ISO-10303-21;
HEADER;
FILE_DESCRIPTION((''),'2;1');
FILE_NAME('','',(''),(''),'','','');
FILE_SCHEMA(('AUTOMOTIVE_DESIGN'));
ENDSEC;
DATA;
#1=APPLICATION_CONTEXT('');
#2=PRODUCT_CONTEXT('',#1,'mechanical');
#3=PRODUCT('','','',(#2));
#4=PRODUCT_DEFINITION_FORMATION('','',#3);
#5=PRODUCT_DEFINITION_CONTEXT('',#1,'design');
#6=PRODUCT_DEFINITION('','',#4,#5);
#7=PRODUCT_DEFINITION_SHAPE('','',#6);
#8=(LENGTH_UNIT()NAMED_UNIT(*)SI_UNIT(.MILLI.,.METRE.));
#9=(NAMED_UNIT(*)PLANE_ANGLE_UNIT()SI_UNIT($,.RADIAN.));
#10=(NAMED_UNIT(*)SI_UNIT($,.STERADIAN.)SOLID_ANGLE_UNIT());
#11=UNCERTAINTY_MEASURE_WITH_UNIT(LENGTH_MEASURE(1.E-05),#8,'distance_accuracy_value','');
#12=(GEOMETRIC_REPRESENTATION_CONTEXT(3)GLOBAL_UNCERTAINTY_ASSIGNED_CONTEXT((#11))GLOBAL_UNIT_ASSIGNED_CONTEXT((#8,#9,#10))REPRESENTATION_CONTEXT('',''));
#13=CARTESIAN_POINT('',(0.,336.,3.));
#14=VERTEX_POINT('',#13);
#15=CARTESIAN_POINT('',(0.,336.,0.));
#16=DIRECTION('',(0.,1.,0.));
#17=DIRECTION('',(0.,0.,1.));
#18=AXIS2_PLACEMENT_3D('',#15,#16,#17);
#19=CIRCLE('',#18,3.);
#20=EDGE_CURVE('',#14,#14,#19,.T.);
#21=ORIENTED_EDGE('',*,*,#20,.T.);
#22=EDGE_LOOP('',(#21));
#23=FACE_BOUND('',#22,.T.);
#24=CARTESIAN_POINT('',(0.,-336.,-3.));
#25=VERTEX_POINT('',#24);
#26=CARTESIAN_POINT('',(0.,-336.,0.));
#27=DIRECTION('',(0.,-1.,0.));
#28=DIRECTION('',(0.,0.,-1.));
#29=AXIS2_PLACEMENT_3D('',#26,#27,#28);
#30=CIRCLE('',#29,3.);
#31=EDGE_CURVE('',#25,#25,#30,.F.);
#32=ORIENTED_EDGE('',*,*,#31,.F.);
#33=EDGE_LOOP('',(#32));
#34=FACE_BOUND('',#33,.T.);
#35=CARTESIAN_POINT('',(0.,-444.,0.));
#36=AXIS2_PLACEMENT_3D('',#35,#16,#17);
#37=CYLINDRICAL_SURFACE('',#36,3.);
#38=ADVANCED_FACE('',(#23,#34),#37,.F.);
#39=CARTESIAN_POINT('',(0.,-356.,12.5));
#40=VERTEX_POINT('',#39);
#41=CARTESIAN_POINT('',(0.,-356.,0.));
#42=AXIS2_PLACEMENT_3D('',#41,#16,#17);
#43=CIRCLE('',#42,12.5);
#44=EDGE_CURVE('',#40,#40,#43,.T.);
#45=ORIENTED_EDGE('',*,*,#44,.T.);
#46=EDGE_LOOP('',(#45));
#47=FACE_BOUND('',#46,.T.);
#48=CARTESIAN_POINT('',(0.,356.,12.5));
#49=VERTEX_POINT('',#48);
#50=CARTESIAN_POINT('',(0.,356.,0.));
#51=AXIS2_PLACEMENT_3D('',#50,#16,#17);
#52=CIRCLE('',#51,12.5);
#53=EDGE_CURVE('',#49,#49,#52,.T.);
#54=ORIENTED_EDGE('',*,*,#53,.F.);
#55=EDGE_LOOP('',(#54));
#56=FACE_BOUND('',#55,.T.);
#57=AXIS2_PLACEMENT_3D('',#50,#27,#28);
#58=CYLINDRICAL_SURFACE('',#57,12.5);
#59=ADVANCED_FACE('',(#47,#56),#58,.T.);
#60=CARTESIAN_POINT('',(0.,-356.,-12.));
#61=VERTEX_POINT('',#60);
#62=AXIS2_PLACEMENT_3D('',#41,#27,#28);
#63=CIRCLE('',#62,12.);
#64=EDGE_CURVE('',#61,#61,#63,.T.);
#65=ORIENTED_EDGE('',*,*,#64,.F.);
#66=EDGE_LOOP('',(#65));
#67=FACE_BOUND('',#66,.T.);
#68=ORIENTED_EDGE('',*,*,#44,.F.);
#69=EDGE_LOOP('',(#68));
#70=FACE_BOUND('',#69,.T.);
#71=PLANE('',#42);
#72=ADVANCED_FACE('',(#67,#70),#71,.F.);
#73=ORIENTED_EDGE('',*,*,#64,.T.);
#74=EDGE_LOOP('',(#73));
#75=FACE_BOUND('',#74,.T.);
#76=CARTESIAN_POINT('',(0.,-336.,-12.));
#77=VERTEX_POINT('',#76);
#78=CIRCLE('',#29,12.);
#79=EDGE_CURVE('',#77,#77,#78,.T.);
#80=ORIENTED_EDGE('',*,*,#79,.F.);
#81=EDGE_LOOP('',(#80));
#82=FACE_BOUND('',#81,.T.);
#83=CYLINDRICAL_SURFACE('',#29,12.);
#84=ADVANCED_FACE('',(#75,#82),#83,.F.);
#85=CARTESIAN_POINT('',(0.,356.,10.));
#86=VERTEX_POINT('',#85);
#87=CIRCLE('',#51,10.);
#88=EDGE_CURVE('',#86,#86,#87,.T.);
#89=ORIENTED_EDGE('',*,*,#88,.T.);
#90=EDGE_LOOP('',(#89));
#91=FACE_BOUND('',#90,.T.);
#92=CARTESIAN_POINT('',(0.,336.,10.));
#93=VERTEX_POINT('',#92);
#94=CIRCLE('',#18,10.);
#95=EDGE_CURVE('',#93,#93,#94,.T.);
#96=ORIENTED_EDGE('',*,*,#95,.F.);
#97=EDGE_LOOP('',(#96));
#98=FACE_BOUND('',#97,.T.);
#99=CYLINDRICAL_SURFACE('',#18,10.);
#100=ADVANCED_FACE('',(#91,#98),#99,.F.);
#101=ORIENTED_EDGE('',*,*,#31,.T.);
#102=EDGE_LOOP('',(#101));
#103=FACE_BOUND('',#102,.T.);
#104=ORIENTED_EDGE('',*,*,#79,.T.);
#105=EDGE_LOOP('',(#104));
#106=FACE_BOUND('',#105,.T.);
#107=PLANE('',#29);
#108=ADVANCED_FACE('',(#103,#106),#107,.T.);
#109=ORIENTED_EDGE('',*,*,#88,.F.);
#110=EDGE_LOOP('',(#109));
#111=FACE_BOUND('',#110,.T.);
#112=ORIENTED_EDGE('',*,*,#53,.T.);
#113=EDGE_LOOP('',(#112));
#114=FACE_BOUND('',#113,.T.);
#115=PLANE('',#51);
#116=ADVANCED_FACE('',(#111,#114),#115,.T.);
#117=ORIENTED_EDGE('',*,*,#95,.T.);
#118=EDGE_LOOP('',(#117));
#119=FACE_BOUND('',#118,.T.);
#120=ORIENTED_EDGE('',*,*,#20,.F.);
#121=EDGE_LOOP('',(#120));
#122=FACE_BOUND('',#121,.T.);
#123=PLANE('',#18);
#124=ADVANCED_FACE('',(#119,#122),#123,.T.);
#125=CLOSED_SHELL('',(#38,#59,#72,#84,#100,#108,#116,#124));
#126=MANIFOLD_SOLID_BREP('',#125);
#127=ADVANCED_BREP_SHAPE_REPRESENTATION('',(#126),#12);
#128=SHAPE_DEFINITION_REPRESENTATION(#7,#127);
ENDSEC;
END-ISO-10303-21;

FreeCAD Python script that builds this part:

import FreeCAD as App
import Part
import Sketcher
from FreeCAD import Vector

doc = App.newDocument("Part")
body = doc.addObject("PartDesign::Body", "Body")

# Sketch on XZ plane
sketch1 = body.newObject("Sketcher::SketchObject", "Sketch")
sketch1.AttachmentSupport = (doc.getObject("XZ_Plane"), [""])
sketch1.MapMode = "FlatFace"
sketch1.addGeometry(Part.Circle(Vector(0, 0, 0), Vector(0, 0, 1), 12), False)
sketch1.addConstraint([
    Sketcher.Constraint("Coincident", 0, 3, -1, 1),
    Sketcher.Constraint("Diameter", 0, 25.0),
])
pad1 = body.newObject("PartDesign::Pad", "Pad")
pad1.Profile = sketch1
pad1.Length = 712
pad1.Midplane = True

# Sketch on XZ plane
sketch2 = body.newObject("Sketcher::SketchObject", "Sketch001")
sketch2.AttachmentSupport = (doc.getObject("XZ_Plane"), [""])
sketch2.MapMode = "FlatFace"
sketch2.AttachmentOffset = App.Placement(Vector(0, 0, -356), App.Rotation())
sketch2.addGeometry(Part.Circle(Vector(0, 0, 0), Vector(0, 0, 1), 10), False)
sketch2.addConstraint([
    Sketcher.Constraint("Coincident", 0, 3, -1, 1),
    Sketcher.Constraint("Diameter", 0, 20.0),
])
pocket1 = body.newObject("PartDesign::Pocket", "Pocket")
pocket1.Profile = sketch2
pocket1.Length = 20
pocket1.Reversed = True

# Sketch on XZ plane
sketch3 = body.newObject("Sketcher::SketchObject", "Sketch002")
sketch3.AttachmentSupport = (doc.getObject("XZ_Plane"), [""])
sketch3.MapMode = "FlatFace"
sketch3.AttachmentOffset = App.Placement(Vector(0, 0, -356), App.Rotation())
sketch3.addGeometry(Part.Circle(Vector(0, 0, 0), Vector(0, 0, 1), 3), False)
sketch3.addConstraint([
    Sketcher.Constraint("Coincident", 0, 3, -1, 1),
    Sketcher.Constraint("Diameter", 0, 6.0),
])
pocket2 = body.newObject("PartDesign::Pocket", "Pocket001")
pocket2.Profile = sketch3
pocket2.Length = 800
pocket2.Reversed = True

# Sketch on XZ plane
sketch4 = body.newObject("Sketcher::SketchObject", "Sketch003")
sketch4.AttachmentSupport = (doc.getObject("XZ_Plane"), [""])
sketch4.MapMode = "FlatFace"
sketch4.AttachmentOffset = App.Placement(Vector(0, 0, 356), App.Rotation())
sketch4.addGeometry(Part.Circle(Vector(0, 0, 0), Vector(0, 0, 1), 12), False)
sketch4.addConstraint([
    Sketcher.Constraint("Coincident", 0, 3, -1, 1),
    Sketcher.Constraint("Diameter", 0, 24.0),
])
pocket3 = body.newObject("PartDesign::Pocket", "Pocket002")
pocket3.Profile = sketch4
pocket3.Length = 20

doc.recompute()
